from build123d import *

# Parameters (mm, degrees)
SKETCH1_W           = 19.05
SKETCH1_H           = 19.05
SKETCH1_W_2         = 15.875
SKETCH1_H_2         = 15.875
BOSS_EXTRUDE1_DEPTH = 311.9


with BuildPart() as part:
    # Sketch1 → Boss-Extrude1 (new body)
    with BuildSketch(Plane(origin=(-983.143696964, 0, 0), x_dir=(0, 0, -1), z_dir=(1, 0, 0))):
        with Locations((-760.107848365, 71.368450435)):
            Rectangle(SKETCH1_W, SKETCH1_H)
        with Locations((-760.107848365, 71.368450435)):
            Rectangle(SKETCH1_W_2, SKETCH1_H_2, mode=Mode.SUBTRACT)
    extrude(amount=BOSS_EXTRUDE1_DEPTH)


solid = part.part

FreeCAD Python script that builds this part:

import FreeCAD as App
import Part
import Sketcher
Q = App.Units.Quantity


def add_polygon(sketch, points):
    """Adds a closed chain of lines whose ends are joined by coincident constraints."""
    first, n = sketch.GeometryCount, len(points)
    for a, b in zip(points, points[1:] + points[:1]):
        sketch.addGeometry(Part.LineSegment(App.Vector(*a, 0), App.Vector(*b, 0)), False)
    for i in range(n):
        sketch.addConstraint(Sketcher.Constraint("Coincident", first + i, 2, first + (i + 1) % n, 1))

doc = App.newDocument("Part")
body = doc.addObject("PartDesign::Body", "Body")

sketch1 = body.newObject("Sketcher::SketchObject", "Sketch")
sketch1.AttachmentSupport = (doc.getObject("YZ_Plane"), [""])
sketch1.MapMode = "FlatFace"
sketch1.AttachmentOffset = App.Placement(App.Vector(0, 0, -983.143697), App.Rotation())
add_polygon(sketch1, [(81, 770), (62, 770), (62, 751), (81, 751)])
add_polygon(sketch1, [(63, 752), (63, 768), (79, 768), (79, 752)])
sketch1.addConstraint([
    Sketcher.Constraint("Horizontal", 0),
    Sketcher.Constraint("Vertical", 1),
    Sketcher.Constraint("Horizontal", 2),
    Sketcher.Constraint("Vertical", 3),
    Sketcher.Constraint("Vertical", 4),
    Sketcher.Constraint("Horizontal", 5),
    Sketcher.Constraint("Vertical", 6),
    Sketcher.Constraint("Horizontal", 7),
    Sketcher.Constraint("Equal", 2, 1),
    Sketcher.Constraint("Equal", 7, 4),
    Sketcher.Constraint("DistanceX", 0, 2, 0, 1, Q("0.75 in")),
    Sketcher.Constraint("DistanceX", 5, 1, 5, 2, Q("0.625 in")),
    Sketcher.Constraint("DistanceX", 0, 2, 4, 2, Q("0.0625 in")),
    Sketcher.Constraint("DistanceY", 4, 2, 0, 2, Q("0.0625 in")),
    Sketcher.Constraint("DistanceX", -1, 1, 0, 2, 61.84345),
    Sketcher.Constraint("DistanceY", -1, 1, 0, 2, 769.632848),
])
pad1 = body.newObject("PartDesign::Pad", "Pad")
pad1.Profile = sketch1
pad1.Length = 311.9

doc.recompute()
